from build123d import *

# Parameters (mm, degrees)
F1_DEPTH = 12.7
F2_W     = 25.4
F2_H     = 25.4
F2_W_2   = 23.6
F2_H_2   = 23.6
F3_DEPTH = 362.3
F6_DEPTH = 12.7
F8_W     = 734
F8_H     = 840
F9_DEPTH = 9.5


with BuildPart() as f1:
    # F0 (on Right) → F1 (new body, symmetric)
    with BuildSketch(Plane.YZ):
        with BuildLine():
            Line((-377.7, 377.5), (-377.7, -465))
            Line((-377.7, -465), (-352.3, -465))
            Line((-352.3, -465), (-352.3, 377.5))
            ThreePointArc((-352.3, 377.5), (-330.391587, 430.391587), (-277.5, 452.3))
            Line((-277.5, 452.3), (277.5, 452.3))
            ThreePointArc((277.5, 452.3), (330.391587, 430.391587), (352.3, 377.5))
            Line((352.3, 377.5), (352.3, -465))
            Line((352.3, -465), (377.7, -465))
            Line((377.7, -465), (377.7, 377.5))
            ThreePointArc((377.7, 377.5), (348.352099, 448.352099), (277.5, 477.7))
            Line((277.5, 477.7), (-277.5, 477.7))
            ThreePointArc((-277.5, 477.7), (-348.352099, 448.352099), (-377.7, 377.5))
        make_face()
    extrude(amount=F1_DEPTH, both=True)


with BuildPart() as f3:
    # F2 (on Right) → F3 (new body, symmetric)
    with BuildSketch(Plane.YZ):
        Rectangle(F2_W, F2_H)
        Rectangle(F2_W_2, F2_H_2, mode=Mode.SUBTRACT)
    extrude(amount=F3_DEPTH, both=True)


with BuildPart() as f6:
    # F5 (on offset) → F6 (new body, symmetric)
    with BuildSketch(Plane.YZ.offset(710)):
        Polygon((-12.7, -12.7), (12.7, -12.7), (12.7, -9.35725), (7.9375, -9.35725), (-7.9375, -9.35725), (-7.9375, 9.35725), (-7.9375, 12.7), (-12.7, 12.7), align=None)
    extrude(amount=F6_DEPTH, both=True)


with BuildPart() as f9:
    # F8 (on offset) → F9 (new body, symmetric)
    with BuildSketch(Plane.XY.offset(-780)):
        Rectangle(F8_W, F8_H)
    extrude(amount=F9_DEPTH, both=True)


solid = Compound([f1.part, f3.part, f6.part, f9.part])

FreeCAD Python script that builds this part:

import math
import FreeCAD as App
import Part
import Sketcher

doc = App.newDocument("Part")
body = doc.addObject("PartDesign::Body", "Body")

sketch1 = body.newObject("Sketcher::SketchObject", "Sketch")
sketch1.AttachmentSupport = (doc.getObject("YZ_Plane"), [""])
sketch1.MapMode = "FlatFace"
sketch1.addGeometry([
    Part.LineSegment(App.Vector(-378, 378, 0), App.Vector(-378, -465, 0)),
    Part.LineSegment(App.Vector(-378, -465, 0), App.Vector(-352, -465, 0)),
    Part.LineSegment(App.Vector(-352, -465, 0), App.Vector(-352, 378, 0)),
    Part.ArcOfCircle(Part.Circle(App.Vector(-277, 377, 0), App.Vector(0, 0, 1), 75), math.radians(90), math.radians(180)),
    Part.LineSegment(App.Vector(-278, 452, 0), App.Vector(278, 452, 0)),
    Part.ArcOfCircle(Part.Circle(App.Vector(277, 377, 0), App.Vector(0, 0, 1), 75), math.radians(0), math.radians(90)),
    Part.LineSegment(App.Vector(352, 378, 0), App.Vector(352, -465, 0)),
    Part.LineSegment(App.Vector(352, -465, 0), App.Vector(378, -465, 0)),
    Part.LineSegment(App.Vector(378, -465, 0), App.Vector(378, 378, 0)),
    Part.ArcOfCircle(Part.Circle(App.Vector(277, 377, 0), App.Vector(0, 0, 1), 100), math.radians(0), math.radians(90)),
    Part.LineSegment(App.Vector(278, 478, 0), App.Vector(-278, 478, 0)),
    Part.ArcOfCircle(Part.Circle(App.Vector(-277, 377, 0), App.Vector(0, 0, 1), 100), math.radians(90), math.radians(180)),
], False)
sketch1.addConstraint([
    Sketcher.Constraint("Coincident", 0, 2, 1, 1),
    Sketcher.Constraint("Coincident", 1, 2, 2, 1),
    Sketcher.Constraint("Tangent", 2, 2, 3, 2),
    Sketcher.Constraint("Tangent", 3, 1, 4, 1),
    Sketcher.Constraint("Tangent", 4, 2, 5, 2),
    Sketcher.Constraint("Tangent", 5, 1, 6, 1),
    Sketcher.Constraint("Coincident", 6, 2, 7, 1),
    Sketcher.Constraint("Coincident", 7, 2, 8, 1),
    Sketcher.Constraint("Tangent", 8, 2, 9, 1),
    Sketcher.Constraint("Tangent", 9, 2, 10, 1),
    Sketcher.Constraint("Tangent", 10, 2, 11, 1),
    Sketcher.Constraint("Tangent", 11, 2, 0, 1),
    Sketcher.Constraint("Vertical", 0),
    Sketcher.Constraint("Horizontal", 1),
    Sketcher.Constraint("Vertical", 2),
    Sketcher.Constraint("Horizontal", 4),
    Sketcher.Constraint("Vertical", 6),
    Sketcher.Constraint("Horizontal", 7),
    Sketcher.Constraint("Vertical", 8),
    Sketcher.Constraint("Horizontal", 10),
    Sketcher.Constraint("Coincident", 9, 3, 5, 3),
    Sketcher.Constraint("Coincident", 11, 3, 3, 3),
    Sketcher.Constraint("Equal", 3, 5),
    Sketcher.Constraint("Symmetric", 1, 2, 6, 2, -2),
    Sketcher.Constraint("Radius", 3, 74.800001),
    Sketcher.Constraint("Radius", 9, 100.200002),
    Sketcher.Constraint("DistanceX", 4, 1, 4, 2, 555.0),
    Sketcher.Constraint("DistanceY", 0, 2, 0, 1, 842.5),
    Sketcher.Constraint("DistanceY", 0, 2, -1, 1, 465.0),
])
pad1 = body.newObject("PartDesign::Pad", "Pad")
pad1.Profile = sketch1
pad1.Length = 25.4
pad1.Midplane = True
body2 = doc.addObject("PartDesign::Body", "Body001")

sketch2 = body2.newObject("Sketcher::SketchObject", "Sketch001")
sketch2.AttachmentSupport = (doc.getObject("YZ_Plane001"), [""])
sketch2.MapMode = "FlatFace"
sketch2.addGeometry([
    Part.LineSegment(App.Vector(-13, 13, 0), App.Vector(-13, -13, 0)),
    Part.LineSegment(App.Vector(-13, -13, 0), App.Vector(13, -13, 0)),
    Part.LineSegment(App.Vector(13, -13, 0), App.Vector(13, 13, 0)),
    Part.LineSegment(App.Vector(13, 13, 0), App.Vector(-13, 13, 0)),
    Part.LineSegment(App.Vector(12, -12, 0), App.Vector(-12, -12, 0)),
    Part.LineSegment(App.Vector(-12, -12, 0), App.Vector(-12, 12, 0)),
    Part.LineSegment(App.Vector(-12, 12, 0), App.Vector(12, 12, 0)),
    Part.LineSegment(App.Vector(12, 12, 0), App.Vector(12, -12, 0)),
], False)
sketch2.addConstraint([
    Sketcher.Constraint("Coincident", 0, 2, 1, 1),
    Sketcher.Constraint("Coincident", 1, 2, 2, 1),
    Sketcher.Constraint("Coincident", 2, 2, 3, 1),
    Sketcher.Constraint("Coincident", 3, 2, 0, 1),
    Sketcher.Constraint("Coincident", 4, 2, 5, 1),
    Sketcher.Constraint("Coincident", 5, 2, 6, 1),
    Sketcher.Constraint("Coincident", 6, 2, 7, 1),
    Sketcher.Constraint("Coincident", 7, 2, 4, 1),
    Sketcher.Constraint("Vertical", 0),
    Sketcher.Constraint("Horizontal", 1),
    Sketcher.Constraint("Vertical", 2),
    Sketcher.Constraint("Horizontal", 3),
    Sketcher.Constraint("Horizontal", 4),
    Sketcher.Constraint("Vertical", 5),
    Sketcher.Constraint("Horizontal", 6),
    Sketcher.Constraint("Vertical", 7),
    Sketcher.Constraint("Symmetric", 0, 2, 2, 2, -1, 1),
    Sketcher.Constraint("Symmetric", 4, 2, 6, 2, -1, 1),
    Sketcher.Constraint("Equal", 3, 0),
    Sketcher.Constraint("Equal", 6, 5),
    Sketcher.Constraint("DistanceX", 1, 1, 1, 2, 25.4),
    Sketcher.Constraint("DistanceX", 4, 2, 4, 1, 23.6),
])
pad2 = body2.newObject("PartDesign::Pad", "Pad001")
pad2.Profile = sketch2
pad2.Length = 724.6
pad2.Midplane = True
body3 = doc.addObject("PartDesign::Body", "Body002")

sketch3 = body3.newObject("Sketcher::SketchObject", "Sketch002")
sketch3.AttachmentSupport = (doc.getObject("YZ_Plane002"), [""])
sketch3.MapMode = "FlatFace"
sketch3.AttachmentOffset = App.Placement(App.Vector(0, 0, 710), App.Rotation())
sketch3.addGeometry([
    Part.LineSegment(App.Vector(-12.7, -12.7, 0), App.Vector(12.7, -12.7, 0)),
    Part.LineSegment(App.Vector(12.7, -12.7, 0), App.Vector(12.7, -9.4, 0)),
    Part.LineSegment(App.Vector(12.7, -9.4, 0), App.Vector(-7.9, -9.4, 0)),
    Part.LineSegment(App.Vector(-7.9, -9.4, 0), App.Vector(-7.9, 12.7, 0)),
    Part.LineSegment(App.Vector(-7.9, 12.7, 0), App.Vector(-12.7, 12.7, 0)),
    Part.LineSegment(App.Vector(-12.7, 12.7, 0), App.Vector(-12.7, -12.7, 0)),
], False)
sketch3.addConstraint([
    Sketcher.Constraint("Coincident", 0, 2, 1, 1),
    Sketcher.Constraint("Coincident", 1, 2, 2, 1),
    Sketcher.Constraint("Coincident", 2, 2, 3, 1),
    Sketcher.Constraint("Coincident", 3, 2, 4, 1),
    Sketcher.Constraint("Coincident", 4, 2, 5, 1),
    Sketcher.Constraint("Coincident", 5, 2, 0, 1),
    Sketcher.Constraint("Horizontal", 0),
    Sketcher.Constraint("Vertical", 1),
    Sketcher.Constraint("Horizontal", 2),
    Sketcher.Constraint("Vertical", 3),
    Sketcher.Constraint("Horizontal", 4),
    Sketcher.Constraint("Vertical", 5),
    Sketcher.Constraint("Symmetric", 0, 2, 4, 2, -1, 1),
    Sketcher.Constraint("Equal", 0, 5),
    Sketcher.Constraint("DistanceX", 0, 1, 0, 2, 25.4),
    Sketcher.Constraint("DistanceX", 2, 2, 2, 1, 20.6375),
    Sketcher.Constraint("DistanceY", 1, 1, 1, 2, 3.34275),
])
pad3 = body3.newObject("PartDesign::Pad", "Pad002")
pad3.Profile = sketch3
pad3.Length = 25.4
pad3.Midplane = True
body4 = doc.addObject("PartDesign::Body", "Body003")

sketch4 = body4.newObject("Sketcher::SketchObject", "Sketch003")
sketch4.AttachmentSupport = (doc.getObject("XY_Plane003"), [""])
sketch4.MapMode = "FlatFace"
sketch4.AttachmentOffset = App.Placement(App.Vector(0, 0, -780), App.Rotation())
sketch4.addGeometry([
    Part.LineSegment(App.Vector(-367, 420, 0), App.Vector(-367, -420, 0)),
    Part.LineSegment(App.Vector(-367, -420, 0), App.Vector(367, -420, 0)),
    Part.LineSegment(App.Vector(367, -420, 0), App.Vector(367, 420, 0)),
    Part.LineSegment(App.Vector(367, 420, 0), App.Vector(-367, 420, 0)),
], False)
sketch4.addConstraint([
    Sketcher.Constraint("Coincident", 0, 2, 1, 1),
    Sketcher.Constraint("Coincident", 1, 2, 2, 1),
    Sketcher.Constraint("Coincident", 2, 2, 3, 1),
    Sketcher.Constraint("Coincident", 3, 2, 0, 1),
    Sketcher.Constraint("Vertical", 0),
    Sketcher.Constraint("Horizontal", 1),
    Sketcher.Constraint("Vertical", 2),
    Sketcher.Constraint("Horizontal", 3),
    Sketcher.Constraint("Symmetric", 0, 2, 2, 2, -1, 1),
    Sketcher.Constraint("DistanceX", 1, 1, 1, 2, 734.0),
    Sketcher.Constraint("DistanceY", 0, 2, 0, 1, 840.0),
])
pad4 = body4.newObject("PartDesign::Pad", "Pad003")
pad4.Profile = sketch4
pad4.Length = 19
pad4.Midplane = True

doc.recompute()
